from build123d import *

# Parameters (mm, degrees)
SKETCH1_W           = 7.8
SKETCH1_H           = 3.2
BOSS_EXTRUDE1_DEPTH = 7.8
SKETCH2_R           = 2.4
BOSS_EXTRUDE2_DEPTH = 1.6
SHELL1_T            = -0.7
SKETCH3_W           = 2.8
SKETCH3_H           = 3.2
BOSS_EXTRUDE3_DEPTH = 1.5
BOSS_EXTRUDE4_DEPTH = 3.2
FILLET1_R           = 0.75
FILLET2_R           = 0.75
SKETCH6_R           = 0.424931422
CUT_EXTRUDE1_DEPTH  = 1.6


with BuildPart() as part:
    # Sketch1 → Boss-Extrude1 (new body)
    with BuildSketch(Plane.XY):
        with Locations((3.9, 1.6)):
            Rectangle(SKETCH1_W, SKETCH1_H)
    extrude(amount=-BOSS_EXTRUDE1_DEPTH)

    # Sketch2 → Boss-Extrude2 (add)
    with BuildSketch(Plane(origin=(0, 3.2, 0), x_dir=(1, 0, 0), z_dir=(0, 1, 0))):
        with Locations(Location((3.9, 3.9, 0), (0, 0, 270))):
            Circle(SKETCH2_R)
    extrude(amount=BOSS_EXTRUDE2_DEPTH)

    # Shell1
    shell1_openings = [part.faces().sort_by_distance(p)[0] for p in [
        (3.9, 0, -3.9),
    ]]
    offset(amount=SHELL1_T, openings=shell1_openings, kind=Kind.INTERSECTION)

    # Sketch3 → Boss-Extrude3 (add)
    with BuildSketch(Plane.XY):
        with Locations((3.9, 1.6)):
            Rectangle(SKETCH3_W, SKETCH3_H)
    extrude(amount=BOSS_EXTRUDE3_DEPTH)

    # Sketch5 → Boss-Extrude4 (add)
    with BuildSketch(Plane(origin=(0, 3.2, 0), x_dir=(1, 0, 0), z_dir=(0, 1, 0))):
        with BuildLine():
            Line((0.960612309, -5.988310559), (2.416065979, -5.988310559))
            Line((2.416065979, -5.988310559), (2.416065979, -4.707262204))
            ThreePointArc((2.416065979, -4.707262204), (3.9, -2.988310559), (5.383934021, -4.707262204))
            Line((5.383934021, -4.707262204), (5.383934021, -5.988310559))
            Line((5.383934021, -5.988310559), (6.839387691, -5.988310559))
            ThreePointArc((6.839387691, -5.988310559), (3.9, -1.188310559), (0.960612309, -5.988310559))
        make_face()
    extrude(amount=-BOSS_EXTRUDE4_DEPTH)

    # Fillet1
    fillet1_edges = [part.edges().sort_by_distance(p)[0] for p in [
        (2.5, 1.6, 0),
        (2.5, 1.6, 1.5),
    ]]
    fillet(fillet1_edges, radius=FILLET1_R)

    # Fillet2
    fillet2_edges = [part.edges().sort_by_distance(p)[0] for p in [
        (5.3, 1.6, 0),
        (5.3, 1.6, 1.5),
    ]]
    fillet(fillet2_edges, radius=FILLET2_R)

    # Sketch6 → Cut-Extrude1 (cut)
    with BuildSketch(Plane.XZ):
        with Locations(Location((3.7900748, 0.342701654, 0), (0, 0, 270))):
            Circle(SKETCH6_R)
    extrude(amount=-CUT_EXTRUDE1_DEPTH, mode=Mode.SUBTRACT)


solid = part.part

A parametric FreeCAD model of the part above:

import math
import FreeCAD as App
import Part
import Sketcher
from FreeCAD import Vector


def edges_at(feature, points):
    """Names of the edges that pass closest to the given points."""
    edges = feature.Shape.Edges
    near = lambda p: min(range(len(edges)), key=lambda i: edges[i].distToShape(Part.Vertex(*p))[0])
    return sorted({f"Edge{near(p) + 1}" for p in points})


def faces_at(feature, points):
    """Names of the faces that lie closest to the given points."""
    faces = feature.Shape.Faces
    near = lambda p: min(range(len(faces)), key=lambda i: faces[i].distToShape(Part.Vertex(*p))[0])
    return sorted({f"Face{near(p) + 1}" for p in points})

doc = App.newDocument("Part")
body = doc.addObject("PartDesign::Body", "Body")

# Sketch on XY plane
sketch1 = body.newObject("Sketcher::SketchObject", "Sketch")
sketch1.AttachmentSupport = (doc.getObject("XY_Plane"), [""])
sketch1.MapMode = "FlatFace"
sketch1.addGeometry(Part.LineSegment(Vector(0, 3.2, 0), Vector(0, 0, 0)), False)
sketch1.addGeometry(Part.LineSegment(Vector(0, 0, 0), Vector(7.8, 0, 0)), False)
sketch1.addGeometry(Part.LineSegment(Vector(7.8, 0, 0), Vector(7.8, 3.2, 0)), False)
sketch1.addGeometry(Part.LineSegment(Vector(7.8, 3.2, 0), Vector(0, 3.2, 0)), False)
sketch1.addConstraint(Sketcher.Constraint("Coincident", 0, 2, 1, 1))
sketch1.addConstraint(Sketcher.Constraint("Coincident", 1, 2, 2, 1))
sketch1.addConstraint(Sketcher.Constraint("Coincident", 2, 2, 3, 1))
sketch1.addConstraint(Sketcher.Constraint("Coincident", 3, 2, 0, 1))
sketch1.addConstraint(Sketcher.Constraint("Vertical", 0))
sketch1.addConstraint(Sketcher.Constraint("Horizontal", 1))
sketch1.addConstraint(Sketcher.Constraint("Vertical", 2))
sketch1.addConstraint(Sketcher.Constraint("Horizontal", 3))
sketch1.addConstraint(Sketcher.Constraint("Coincident", 0, 2, -1, 1))
sketch1.addConstraint(Sketcher.Constraint("DistanceX", 1, 1, 1, 2, 7.8))
sketch1.addConstraint(Sketcher.Constraint("DistanceY", 0, 2, 0, 1, 3.2))
pad1 = body.newObject("PartDesign::Pad", "Pad")
pad1.Profile = sketch1
pad1.Length = 7.8
pad1.Reversed = True

# Sketch on XZ plane
sketch2 = body.newObject("Sketcher::SketchObject", "Sketch001")
sketch2.AttachmentSupport = (doc.getObject("XZ_Plane"), [""])
sketch2.MapMode = "FlatFace"
sketch2.AttachmentOffset = App.Placement(Vector(0, 0, -3.2), App.Rotation())
sketch2.addGeometry(Part.Circle(Vector(3.9, -3.9, 0), Vector(0, 0, 1), 2.4), False)
sketch2.addConstraint(Sketcher.Constraint("Diameter", 0, 4.8))
sketch2.addConstraint(Sketcher.Constraint("DistanceX", -1, 1, 0, 3, 3.9))
sketch2.addConstraint(Sketcher.Constraint("DistanceY", 0, 3, -1, 1, 3.9))
pad2 = body.newObject("PartDesign::Pad", "Pad001")
pad2.Profile = sketch2
pad2.Length = 1.6
pad2.Reversed = True
doc.recompute()

thickness = body.newObject("PartDesign::Thickness", "Thickness")
thickness.Base = (pad2, faces_at(pad2, [(3.9, 0, -3.9)]))
thickness.Value = 0.7
thickness.Reversed = True
thickness.Join = "Intersection"

# Sketch on XY plane
sketch3 = body.newObject("Sketcher::SketchObject", "Sketch002")
sketch3.AttachmentSupport = (doc.getObject("XY_Plane"), [""])
sketch3.MapMode = "FlatFace"
sketch3.addGeometry(Part.LineSegment(Vector(2.5, 3.2, 0), Vector(2.5, 0, 0)), False)
sketch3.addGeometry(Part.LineSegment(Vector(2.5, 0, 0), Vector(5.3, 0, 0)), False)
sketch3.addGeometry(Part.LineSegment(Vector(5.3, 0, 0), Vector(5.3, 3.2, 0)), False)
sketch3.addGeometry(Part.LineSegment(Vector(5.3, 3.2, 0), Vector(2.5, 3.2, 0)), False)
sketch3.addConstraint(Sketcher.Constraint("Coincident", 0, 2, 1, 1))
sketch3.addConstraint(Sketcher.Constraint("Coincident", 1, 2, 2, 1))
sketch3.addConstraint(Sketcher.Constraint("Coincident", 2, 2, 3, 1))
sketch3.addConstraint(Sketcher.Constraint("Coincident", 3, 2, 0, 1))
sketch3.addConstraint(Sketcher.Constraint("Vertical", 0))
sketch3.addConstraint(Sketcher.Constraint("Horizontal", 1))
sketch3.addConstraint(Sketcher.Constraint("Vertical", 2))
sketch3.addConstraint(Sketcher.Constraint("Horizontal", 3))
sketch3.addConstraint(Sketcher.Constraint("PointOnObject", 0, 2, -1))
sketch3.addConstraint(Sketcher.Constraint("DistanceX", 1, 1, 1, 2, 2.8))
sketch3.addConstraint(Sketcher.Constraint("DistanceY", 0, 2, 0, 1, 3.2))
sketch3.addConstraint(Sketcher.Constraint("DistanceX", -1, 1, 0, 2, 2.5))
pad3 = body.newObject("PartDesign::Pad", "Pad002")
pad3.Profile = sketch3
pad3.Length = 1.5

# Sketch on XZ plane
sketch4 = body.newObject("Sketcher::SketchObject", "Sketch003")
sketch4.AttachmentSupport = (doc.getObject("XZ_Plane"), [""])
sketch4.MapMode = "FlatFace"
sketch4.AttachmentOffset = App.Placement(Vector(0, 0, -3.2), App.Rotation())
sketch4.addGeometry(Part.LineSegment(Vector(0.960612, 5.988311, 0), Vector(2.416066, 5.988311, 0)), False)
sketch4.addGeometry(Part.LineSegment(Vector(2.416066, 5.988311, 0), Vector(2.416066, 4.707262, 0)), False)
sketch4.addGeometry(Part.ArcOfCircle(Part.Circle(Vector(3.9, 4.488311, 0), Vector(0, 0, 1), 1.5), math.radians(171.606676), math.radians(368.393324)), False)
sketch4.addGeometry(Part.LineSegment(Vector(5.383934, 4.707262, 0), Vector(5.383934, 5.988311, 0)), False)
sketch4.addGeometry(Part.LineSegment(Vector(5.383934, 5.988311, 0), Vector(6.839388, 5.988311, 0)), False)
sketch4.addGeometry(Part.ArcOfCircle(Part.Circle(Vector(3.9, 4.488311, 0), Vector(0, 0, 1), 3.3), math.radians(152.964308), math.radians(387.035692)), False)
sketch4.addConstraint(Sketcher.Constraint("Coincident", 0, 2, 1, 1))
sketch4.addConstraint(Sketcher.Constraint("Coincident", 1, 2, 2, 1))
sketch4.addConstraint(Sketcher.Constraint("Coincident", 2, 2, 3, 1))
sketch4.addConstraint(Sketcher.Constraint("Coincident", 3, 2, 4, 1))
sketch4.addConstraint(Sketcher.Constraint("Coincident", 4, 2, 5, 2))
sketch4.addConstraint(Sketcher.Constraint("Coincident", 5, 1, 0, 1))
sketch4.addConstraint(Sketcher.Constraint("Horizontal", 0))
sketch4.addConstraint(Sketcher.Constraint("Vertical", 1))
sketch4.addConstraint(Sketcher.Constraint("Vertical", 3))
sketch4.addConstraint(Sketcher.Constraint("Horizontal", 4))
sketch4.addConstraint(Sketcher.Constraint("Coincident", 5, 3, 2, 3))
sketch4.addConstraint(Sketcher.Constraint("Horizontal", 1, 2, 2, 2))
sketch4.addConstraint(Sketcher.Constraint("Horizontal", 0, 2, 3, 2))
sketch4.addConstraint(Sketcher.Constraint("Radius", 2, 1.5))
sketch4.addConstraint(Sketcher.Constraint("Radius", 5, 3.3))
sketch4.addConstraint(Sketcher.Constraint("DistanceX", -1, 1, 2, 3, 3.9))
sketch4.addConstraint(Sketcher.Constraint("DistanceY", 2, 3, 0, 2, 1.5))
sketch4.addConstraint(Sketcher.Constraint("DistanceY", 1, 2, 1, 1, 1.281048))
sketch4.addConstraint(Sketcher.Constraint("DistanceY", -1, 1, 2, 3, 4.488311))
pad4 = body.newObject("PartDesign::Pad", "Pad003")
pad4.Profile = sketch4
pad4.Length = 3.2
doc.recompute()

fillet = body.newObject("PartDesign::Fillet", "Fillet")
fillet.Base = (pad4, edges_at(pad4, [(2.5, 1.6, 0), (2.5, 1.6, 1.5)]))
fillet.Radius = 0.75
doc.recompute()

fillet2 = body.newObject("PartDesign::Fillet", "Fillet001")
fillet2.Base = (fillet, edges_at(fillet, [(5.3, 1.6, 0), (5.3, 1.6, 1.5)]))
fillet2.Radius = 0.75

# Sketch on XZ plane
sketch5 = body.newObject("Sketcher::SketchObject", "Sketch004")
sketch5.AttachmentSupport = (doc.getObject("XZ_Plane"), [""])
sketch5.MapMode = "FlatFace"
sketch5.addGeometry(Part.Circle(Vector(3.790075, 0.342702, 0), Vector(0, 0, 1), 0.424931), False)
sketch5.addConstraint(Sketcher.Constraint("Diameter", 0, 0.849863))
sketch5.addConstraint(Sketcher.Constraint("DistanceY", -1, 1, 0, 3, 0.342702))
sketch5.addConstraint(Sketcher.Constraint("DistanceX", -1, 1, 0, 3, 3.790075))
pocket1 = body.newObject("PartDesign::Pocket", "Pocket")
pocket1.Profile = sketch5
pocket1.Length = 1.6

doc.recompute()
